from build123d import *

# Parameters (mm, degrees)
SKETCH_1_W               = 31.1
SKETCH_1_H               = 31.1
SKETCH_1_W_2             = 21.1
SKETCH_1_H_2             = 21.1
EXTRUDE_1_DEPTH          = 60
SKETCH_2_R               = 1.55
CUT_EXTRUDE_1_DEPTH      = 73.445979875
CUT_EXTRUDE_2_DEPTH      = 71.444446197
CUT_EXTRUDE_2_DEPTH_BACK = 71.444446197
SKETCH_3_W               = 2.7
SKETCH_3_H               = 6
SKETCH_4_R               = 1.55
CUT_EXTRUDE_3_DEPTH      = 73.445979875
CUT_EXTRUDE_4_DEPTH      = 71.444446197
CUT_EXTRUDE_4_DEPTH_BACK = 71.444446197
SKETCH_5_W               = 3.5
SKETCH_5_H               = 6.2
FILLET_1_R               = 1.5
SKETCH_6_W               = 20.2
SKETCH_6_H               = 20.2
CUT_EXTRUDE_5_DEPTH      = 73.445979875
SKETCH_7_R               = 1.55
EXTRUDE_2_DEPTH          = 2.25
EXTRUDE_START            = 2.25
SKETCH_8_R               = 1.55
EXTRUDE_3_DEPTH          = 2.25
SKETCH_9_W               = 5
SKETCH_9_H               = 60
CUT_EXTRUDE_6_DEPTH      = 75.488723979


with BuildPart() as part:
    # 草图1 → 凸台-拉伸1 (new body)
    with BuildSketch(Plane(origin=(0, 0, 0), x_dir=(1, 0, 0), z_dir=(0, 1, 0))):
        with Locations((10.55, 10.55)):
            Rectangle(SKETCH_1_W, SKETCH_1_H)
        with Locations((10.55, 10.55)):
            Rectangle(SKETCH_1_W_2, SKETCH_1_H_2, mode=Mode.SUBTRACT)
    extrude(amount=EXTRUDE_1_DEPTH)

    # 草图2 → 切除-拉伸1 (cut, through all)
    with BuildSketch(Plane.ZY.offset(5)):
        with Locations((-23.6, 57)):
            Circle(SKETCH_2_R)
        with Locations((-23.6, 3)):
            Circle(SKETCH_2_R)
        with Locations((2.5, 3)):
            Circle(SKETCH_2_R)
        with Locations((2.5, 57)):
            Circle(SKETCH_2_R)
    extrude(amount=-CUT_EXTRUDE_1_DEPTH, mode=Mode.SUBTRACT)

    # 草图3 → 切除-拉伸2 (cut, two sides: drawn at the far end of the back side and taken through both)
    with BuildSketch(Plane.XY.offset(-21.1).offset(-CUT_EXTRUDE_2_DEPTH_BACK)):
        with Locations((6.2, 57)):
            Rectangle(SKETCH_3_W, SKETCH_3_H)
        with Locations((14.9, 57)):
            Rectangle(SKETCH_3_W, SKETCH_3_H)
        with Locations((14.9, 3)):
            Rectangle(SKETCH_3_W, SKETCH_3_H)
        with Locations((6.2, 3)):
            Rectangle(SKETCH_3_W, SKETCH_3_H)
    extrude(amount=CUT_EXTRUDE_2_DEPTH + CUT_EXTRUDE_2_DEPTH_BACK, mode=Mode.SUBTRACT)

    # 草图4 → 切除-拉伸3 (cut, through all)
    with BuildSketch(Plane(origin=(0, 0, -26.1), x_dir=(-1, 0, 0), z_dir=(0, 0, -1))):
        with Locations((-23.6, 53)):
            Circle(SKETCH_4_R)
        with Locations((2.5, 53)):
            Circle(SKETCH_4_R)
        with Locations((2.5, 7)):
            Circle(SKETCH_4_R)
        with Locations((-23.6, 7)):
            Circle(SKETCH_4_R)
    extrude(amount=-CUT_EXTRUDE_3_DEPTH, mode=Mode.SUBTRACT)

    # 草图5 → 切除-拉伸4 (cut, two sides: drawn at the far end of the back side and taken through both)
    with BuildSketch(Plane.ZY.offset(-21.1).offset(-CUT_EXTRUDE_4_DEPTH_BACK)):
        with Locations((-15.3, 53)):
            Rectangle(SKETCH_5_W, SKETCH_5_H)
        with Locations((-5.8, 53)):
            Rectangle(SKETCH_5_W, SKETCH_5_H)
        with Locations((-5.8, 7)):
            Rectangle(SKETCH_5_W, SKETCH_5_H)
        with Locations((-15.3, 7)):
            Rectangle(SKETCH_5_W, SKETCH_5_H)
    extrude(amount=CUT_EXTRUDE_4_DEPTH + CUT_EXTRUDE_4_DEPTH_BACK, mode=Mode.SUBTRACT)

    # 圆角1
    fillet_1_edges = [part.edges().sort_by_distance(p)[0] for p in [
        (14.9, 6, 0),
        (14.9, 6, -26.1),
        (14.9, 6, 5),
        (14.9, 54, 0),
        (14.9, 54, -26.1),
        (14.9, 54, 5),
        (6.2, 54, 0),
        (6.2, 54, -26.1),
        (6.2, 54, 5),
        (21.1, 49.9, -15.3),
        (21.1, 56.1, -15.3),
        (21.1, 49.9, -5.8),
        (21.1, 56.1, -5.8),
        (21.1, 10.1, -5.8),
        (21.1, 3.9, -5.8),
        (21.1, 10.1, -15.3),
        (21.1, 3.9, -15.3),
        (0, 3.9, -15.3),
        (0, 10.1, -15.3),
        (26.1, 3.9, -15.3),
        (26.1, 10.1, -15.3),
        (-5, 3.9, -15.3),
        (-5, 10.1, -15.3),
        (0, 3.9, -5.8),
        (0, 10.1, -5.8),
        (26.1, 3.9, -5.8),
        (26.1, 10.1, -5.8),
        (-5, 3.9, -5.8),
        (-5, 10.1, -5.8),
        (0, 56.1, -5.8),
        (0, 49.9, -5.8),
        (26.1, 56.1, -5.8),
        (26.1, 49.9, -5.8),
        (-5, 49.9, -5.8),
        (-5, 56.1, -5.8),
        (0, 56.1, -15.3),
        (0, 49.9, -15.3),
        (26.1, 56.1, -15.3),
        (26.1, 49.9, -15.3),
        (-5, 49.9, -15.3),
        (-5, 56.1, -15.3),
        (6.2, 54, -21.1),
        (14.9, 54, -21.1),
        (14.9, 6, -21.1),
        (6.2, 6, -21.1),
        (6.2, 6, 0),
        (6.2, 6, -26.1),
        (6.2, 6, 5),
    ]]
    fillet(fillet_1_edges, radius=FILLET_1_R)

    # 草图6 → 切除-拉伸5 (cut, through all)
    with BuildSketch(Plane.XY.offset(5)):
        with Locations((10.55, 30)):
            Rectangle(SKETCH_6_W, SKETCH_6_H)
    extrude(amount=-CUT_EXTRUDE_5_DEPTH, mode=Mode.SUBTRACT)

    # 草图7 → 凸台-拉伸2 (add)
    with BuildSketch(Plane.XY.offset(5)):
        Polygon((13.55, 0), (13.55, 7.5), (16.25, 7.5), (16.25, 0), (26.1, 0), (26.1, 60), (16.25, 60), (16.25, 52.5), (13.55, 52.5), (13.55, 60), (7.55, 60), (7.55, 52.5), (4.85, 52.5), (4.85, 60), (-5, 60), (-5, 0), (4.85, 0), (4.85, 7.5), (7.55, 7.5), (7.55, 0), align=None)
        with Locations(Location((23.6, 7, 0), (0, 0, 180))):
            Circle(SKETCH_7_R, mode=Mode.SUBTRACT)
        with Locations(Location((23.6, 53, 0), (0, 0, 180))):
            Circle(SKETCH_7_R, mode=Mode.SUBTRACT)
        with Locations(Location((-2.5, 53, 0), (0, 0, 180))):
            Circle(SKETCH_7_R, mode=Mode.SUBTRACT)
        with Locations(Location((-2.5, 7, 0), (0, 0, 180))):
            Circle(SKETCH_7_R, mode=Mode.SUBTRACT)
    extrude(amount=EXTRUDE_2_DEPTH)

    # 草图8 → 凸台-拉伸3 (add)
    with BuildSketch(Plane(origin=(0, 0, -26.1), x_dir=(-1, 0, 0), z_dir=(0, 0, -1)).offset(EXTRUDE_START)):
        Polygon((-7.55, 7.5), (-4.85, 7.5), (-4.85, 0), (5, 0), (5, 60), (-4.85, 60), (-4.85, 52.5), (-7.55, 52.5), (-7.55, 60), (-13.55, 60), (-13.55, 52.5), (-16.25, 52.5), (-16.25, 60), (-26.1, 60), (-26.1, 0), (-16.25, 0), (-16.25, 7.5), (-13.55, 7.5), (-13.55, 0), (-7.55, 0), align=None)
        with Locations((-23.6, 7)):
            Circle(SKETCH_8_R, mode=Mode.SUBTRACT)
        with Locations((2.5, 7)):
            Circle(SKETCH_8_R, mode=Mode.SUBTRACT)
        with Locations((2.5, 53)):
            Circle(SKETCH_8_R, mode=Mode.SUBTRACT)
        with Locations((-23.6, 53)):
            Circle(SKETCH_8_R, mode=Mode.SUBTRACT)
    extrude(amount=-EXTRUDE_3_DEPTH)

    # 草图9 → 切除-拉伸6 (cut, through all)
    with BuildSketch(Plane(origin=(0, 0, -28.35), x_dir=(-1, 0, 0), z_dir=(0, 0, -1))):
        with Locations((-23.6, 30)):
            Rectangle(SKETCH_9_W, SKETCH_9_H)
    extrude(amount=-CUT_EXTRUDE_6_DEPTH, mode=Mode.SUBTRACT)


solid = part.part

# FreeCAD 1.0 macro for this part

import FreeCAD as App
import Part
import Sketcher
from FreeCAD import Vector


def edges_at(feature, points):
    """Names of the edges that pass closest to the given points."""
    edges = feature.Shape.Edges
    near = lambda p: min(range(len(edges)), key=lambda i: edges[i].distToShape(Part.Vertex(*p))[0])
    return sorted({f"Edge{near(p) + 1}" for p in points})

doc = App.newDocument("Part")
params = doc.addObject("Spreadsheet::Sheet", "Params")
for row, (alias, value) in enumerate([
    ("sketch1_width", "31.1 mm"),
    ("sketch1_width2", "21.1 mm"),
    ("pad1_length", "60 mm"),
    ("sketch2_diameter", "3.1 mm"),
    ("sketch3_height", "6 mm"),
    ("sketch3_width", "2.7 mm"),
    ("sketch4_diameter", "3.1 mm"),
    ("sketch5_width", "6.2 mm"),
    ("sketch5_height", "3.5 mm"),
    ("fillet_radius", "1.5 mm"),
    ("sketch6_width", "20.2 mm"),
    ("sketch7_diameter", "3.1 mm"),
    ("sketch7_width", "6 mm"),
    ("sketch7_height", "60 mm"),
    ("sketch7_width2", "2.7 mm"),
    ("sketch7_height2", "7.5 mm"),
    ("pad2_length", "2.25 mm"),
    ("sketch8_diameter", "3.1 mm"),
    ("sketch8_width", "6 mm"),
    ("sketch8_height", "60 mm"),
    ("sketch8_width2", "2.7 mm"),
    ("sketch8_height2", "7.5 mm"),
    ("pad3_length", "2.25 mm"),
    ("sketch9_width", "5 mm"),
    ("sketch9_height", "60 mm"),
], start=1):
    params.set(f"A{row}", alias)
    params.set(f"B{row}", "=" + value)
    params.setAlias(f"B{row}", alias)

body = doc.addObject("PartDesign::Body", "Body")

# Sketch on XZ plane
sketch1 = doc.addObject("Sketcher::SketchObject", "Sketch")
body.addObject(sketch1)
sketch1.AttachmentSupport = (doc.XZ_Plane, [""])
sketch1.MapMode = "FlatFace"
sketch1.addGeometry([
    Part.LineSegment(Vector(-5, -26, 0), Vector(-5, 5, 0)),  # 0
    Part.LineSegment(Vector(-5, 5, 0), Vector(26, 5, 0)),  # 1
    Part.LineSegment(Vector(26, 5, 0), Vector(26, -26, 0)),  # 2
    Part.LineSegment(Vector(26, -26, 0), Vector(-5, -26, 0)),  # 3
    Part.LineSegment(Vector(21, 0, 0), Vector(0, 0, 0)),  # 4
    Part.LineSegment(Vector(0, 0, 0), Vector(0, -21, 0)),  # 5
    Part.LineSegment(Vector(0, -21, 0), Vector(21, -21, 0)),  # 6
    Part.LineSegment(Vector(21, -21, 0), Vector(21, 0, 0)),  # 7
], False)
sketch1.addConstraint([
    Sketcher.Constraint("Coincident", 0, 2, 1, 1),
    Sketcher.Constraint("Coincident", 1, 2, 2, 1),
    Sketcher.Constraint("Coincident", 2, 2, 3, 1),
    Sketcher.Constraint("Coincident", 3, 2, 0, 1),
    Sketcher.Constraint("Coincident", 4, 2, 5, 1),
    Sketcher.Constraint("Coincident", 5, 2, 6, 1),
    Sketcher.Constraint("Coincident", 6, 2, 7, 1),
    Sketcher.Constraint("Coincident", 7, 2, 4, 1),
    Sketcher.Constraint("Vertical", 0),
    Sketcher.Constraint("Horizontal", 1),
    Sketcher.Constraint("Vertical", 2),
    Sketcher.Constraint("Horizontal", 3),
    Sketcher.Constraint("Horizontal", 4),
    Sketcher.Constraint("Vertical", 5),
    Sketcher.Constraint("Horizontal", 6),
    Sketcher.Constraint("Vertical", 7),
    Sketcher.Constraint("Coincident", 4, 2, -1, 1),
    Sketcher.Constraint("Equal", 3, 0),
    Sketcher.Constraint("Equal", 6, 5),
    Sketcher.Constraint("DistanceX", 1, 1, 1, 2, 31.1),
    Sketcher.Constraint("DistanceX", 4, 2, 4, 1, 21.1),
    Sketcher.Constraint("DistanceX", 0, 2, -1, 1, 5.0),
    Sketcher.Constraint("DistanceY", -1, 1, 0, 2, 5.0),
])
sketch1.setExpression("Constraints[19]", "Params.sketch1_width")
sketch1.setExpression("Constraints[20]", "Params.sketch1_width2")
pad1 = doc.addObject("PartDesign::Pad", "Pad")
body.addObject(pad1)
pad1.Profile = sketch1
pad1.setExpression("Length", "Params.pad1_length")
pad1.Reversed = True

# Sketch on YZ plane
sketch2 = doc.addObject("Sketcher::SketchObject", "Sketch001")
body.addObject(sketch2)
sketch2.AttachmentSupport = (doc.YZ_Plane, [""])
sketch2.MapMode = "FlatFace"
sketch2.AttachmentOffset = App.Placement(Vector(0, 0, -5), App.Rotation())
sketch2.addGeometry([
    Part.Circle(Vector(57, -23.6, 0), Vector(0, 0, 1), 1.6),
    Part.Circle(Vector(3, -23.6, 0), Vector(0, 0, 1), 1.6),
    Part.Circle(Vector(3, 2.5, 0), Vector(0, 0, 1), 1.6),
    Part.Circle(Vector(57, 2.5, 0), Vector(0, 0, 1), 1.6),
], False)
sketch2.addConstraint([
    Sketcher.Constraint("Equal", 0, 1),
    Sketcher.Constraint("Equal", 1, 2),
    Sketcher.Constraint("Equal", 2, 3),
    Sketcher.Constraint("Horizontal", 0, 3, 1, 3),
    Sketcher.Constraint("Horizontal", 2, 3, 3, 3),
    Sketcher.Constraint("Vertical", 1, 3, 2, 3),
    Sketcher.Constraint("Vertical", 0, 3, 3, 3),
    Sketcher.Constraint("Diameter", 0, 3.1),
    Sketcher.Constraint("DistanceX", -1, 1, 0, 3, 57.0),
    Sketcher.Constraint("DistanceX", -1, 1, 1, 3, 3.0),
    Sketcher.Constraint("DistanceY", 0, 3, -1, 1, 23.6),
    Sketcher.Constraint("DistanceY", -1, 1, 2, 3, 2.5),
])
sketch2.setExpression("Constraints[7]", "Params.sketch2_diameter")
pocket1 = doc.addObject("PartDesign::Pocket", "Pocket")
body.addObject(pocket1)
pocket1.Profile = sketch2
pocket1.Type = "ThroughAll"
pocket1.Reversed = True

# Sketch on XY plane
sketch3 = doc.addObject("Sketcher::SketchObject", "Sketch002")
body.addObject(sketch3)
sketch3.AttachmentSupport = (doc.XY_Plane, [""])
sketch3.MapMode = "FlatFace"
sketch3.AttachmentOffset = App.Placement(Vector(0, 0, -21.1), App.Rotation())
sketch3.addGeometry([
    Part.LineSegment(Vector(4.8, 60, 0), Vector(4.8, 54, 0)),  # 0
    Part.LineSegment(Vector(4.8, 54, 0), Vector(7.5, 54, 0)),  # 1
    Part.LineSegment(Vector(7.5, 54, 0), Vector(7.5, 60, 0)),  # 2
    Part.LineSegment(Vector(7.5, 60, 0), Vector(4.8, 60, 0)),  # 3
    Part.LineSegment(Vector(13.6, 60, 0), Vector(13.6, 54, 0)),  # 4
    Part.LineSegment(Vector(13.6, 54, 0), Vector(16.2, 54, 0)),  # 5
    Part.LineSegment(Vector(16.2, 54, 0), Vector(16.2, 60, 0)),  # 6
    Part.LineSegment(Vector(16.2, 60, 0), Vector(13.6, 60, 0)),  # 7
    Part.LineSegment(Vector(13.6, 6, 0), Vector(13.6, 0, 0)),  # 8
    Part.LineSegment(Vector(13.6, 0, 0), Vector(16.2, 0, 0)),  # 9
    Part.LineSegment(Vector(16.2, 0, 0), Vector(16.2, 6, 0)),  # 10
    Part.LineSegment(Vector(16.2, 6, 0), Vector(13.6, 6, 0)),  # 11
    Part.LineSegment(Vector(4.8, 6, 0), Vector(4.8, 0, 0)),  # 12
    Part.LineSegment(Vector(4.8, 0, 0), Vector(7.5, 0, 0)),  # 13
    Part.LineSegment(Vector(7.5, 0, 0), Vector(7.5, 6, 0)),  # 14
    Part.LineSegment(Vector(7.5, 6, 0), Vector(4.8, 6, 0)),  # 15
], False)
sketch3.addConstraint([
    Sketcher.Constraint("Coincident", 0, 2, 1, 1),
    Sketcher.Constraint("Coincident", 1, 2, 2, 1),
    Sketcher.Constraint("Coincident", 2, 2, 3, 1),
    Sketcher.Constraint("Coincident", 3, 2, 0, 1),
    Sketcher.Constraint("Coincident", 4, 2, 5, 1),
    Sketcher.Constraint("Coincident", 5, 2, 6, 1),
    Sketcher.Constraint("Coincident", 6, 2, 7, 1),
    Sketcher.Constraint("Coincident", 7, 2, 4, 1),
    Sketcher.Constraint("Coincident", 8, 2, 9, 1),
    Sketcher.Constraint("Coincident", 9, 2, 10, 1),
    Sketcher.Constraint("Coincident", 10, 2, 11, 1),
    Sketcher.Constraint("Coincident", 11, 2, 8, 1),
    Sketcher.Constraint("Coincident", 12, 2, 13, 1),
    Sketcher.Constraint("Coincident", 13, 2, 14, 1),
    Sketcher.Constraint("Coincident", 14, 2, 15, 1),
    Sketcher.Constraint("Coincident", 15, 2, 12, 1),
    Sketcher.Constraint("Vertical", 0),
    Sketcher.Constraint("Horizontal", 1),
    Sketcher.Constraint("Vertical", 2),
    Sketcher.Constraint("Horizontal", 3),
    Sketcher.Constraint("Vertical", 4),
    Sketcher.Constraint("Horizontal", 5),
    Sketcher.Constraint("Vertical", 6),
    Sketcher.Constraint("Horizontal", 7),
    Sketcher.Constraint("Vertical", 8),
    Sketcher.Constraint("Horizontal", 9),
    Sketcher.Constraint("Vertical", 10),
    Sketcher.Constraint("Horizontal", 11),
    Sketcher.Constraint("Vertical", 12),
    Sketcher.Constraint("Horizontal", 13),
    Sketcher.Constraint("Vertical", 14),
    Sketcher.Constraint("Horizontal", 15),
    Sketcher.Constraint("PointOnObject", 8, 2, -1),
    Sketcher.Constraint("PointOnObject", 12, 2, -1),
    Sketcher.Constraint("Horizontal", 1, 2, 4, 2),
    Sketcher.Constraint("Horizontal", 3, 2, 6, 2),
    Sketcher.Constraint("Horizontal", 11, 2, 14, 2),
    Sketcher.Constraint("Vertical", 7, 2, 8, 2),
    Sketcher.Constraint("Vertical", 6, 2, 9, 2),
    Sketcher.Constraint("Vertical", 3, 2, 12, 2),
    Sketcher.Constraint("Vertical", 2, 2, 13, 2),
    Sketcher.Constraint("Equal", 3, 5),
    Sketcher.Constraint("Equal", 6, 8),
    Sketcher.Constraint("DistanceY", 0, 2, 0, 1, 6.0),
    Sketcher.Constraint("DistanceX", 1, 1, 1, 2, 2.7),
    Sketcher.Constraint("DistanceY", -1, 1, 0, 2, 54.0),
    Sketcher.Constraint("DistanceX", 1, 2, 4, 2, 6.0),
    Sketcher.Constraint("DistanceX", -1, 1, 0, 2, 4.85),
])
sketch3.setExpression("Constraints[43]", "Params.sketch3_height")
sketch3.setExpression("Constraints[44]", "Params.sketch3_width")
pocket2 = doc.addObject("PartDesign::Pocket", "Pocket001")
body.addObject(pocket2)
pocket2.Profile = sketch3
pocket2.Type = "ThroughAll"
pocket2.Midplane = True

# Sketch on XY plane
sketch4 = doc.addObject("Sketcher::SketchObject", "Sketch003")
body.addObject(sketch4)
sketch4.AttachmentSupport = (doc.XY_Plane, [""])
sketch4.MapMode = "FlatFace"
sketch4.AttachmentOffset = App.Placement(Vector(0, 0, -26.1), App.Rotation())
sketch4.addGeometry([
    Part.Circle(Vector(23.6, 53, 0), Vector(0, 0, 1), 1.6),
    Part.Circle(Vector(-2.5, 53, 0), Vector(0, 0, 1), 1.6),
    Part.Circle(Vector(-2.5, 7, 0), Vector(0, 0, 1), 1.6),
    Part.Circle(Vector(23.6, 7, 0), Vector(0, 0, 1), 1.6),
], False)
sketch4.addConstraint([
    Sketcher.Constraint("Equal", 0, 1),
    Sketcher.Constraint("Equal", 1, 2),
    Sketcher.Constraint("Equal", 2, 3),
    Sketcher.Constraint("Horizontal", 0, 3, 1, 3),
    Sketcher.Constraint("Horizontal", 2, 3, 3, 3),
    Sketcher.Constraint("Vertical", 1, 3, 2, 3),
    Sketcher.Constraint("Vertical", 0, 3, 3, 3),
    Sketcher.Constraint("Diameter", 0, 3.1),
    Sketcher.Constraint("DistanceY", -1, 1, 0, 3, 53.0),
    Sketcher.Constraint("DistanceY", -1, 1, 2, 3, 7.0),
    Sketcher.Constraint("DistanceX", -1, 1, 0, 3, 23.6),
    Sketcher.Constraint("DistanceX", 1, 3, -1, 1, 2.5),
])
sketch4.setExpression("Constraints[7]", "Params.sketch4_diameter")
pocket3 = doc.addObject("PartDesign::Pocket", "Pocket002")
body.addObject(pocket3)
pocket3.Profile = sketch4
pocket3.Type = "ThroughAll"
pocket3.Reversed = True

# Sketch on YZ plane
sketch5 = doc.addObject("Sketcher::SketchObject", "Sketch004")
body.addObject(sketch5)
sketch5.AttachmentSupport = (doc.YZ_Plane, [""])
sketch5.MapMode = "FlatFace"
sketch5.AttachmentOffset = App.Placement(Vector(0, 0, 21.1), App.Rotation())
sketch5.addGeometry([
    Part.LineSegment(Vector(56.1, -17.1, 0), Vector(49.9, -17.1, 0)),  # 0
    Part.LineSegment(Vector(49.9, -17.1, 0), Vector(49.9, -13.6, 0)),  # 1
    Part.LineSegment(Vector(49.9, -13.6, 0), Vector(56.1, -13.6, 0)),  # 2
    Part.LineSegment(Vector(56.1, -13.6, 0), Vector(56.1, -17.1, 0)),  # 3
    Part.LineSegment(Vector(56.1, -7.5, 0), Vector(49.9, -7.5, 0)),  # 4
    Part.LineSegment(Vector(49.9, -7.5, 0), Vector(49.9, -4, 0)),  # 5
    Part.LineSegment(Vector(49.9, -4, 0), Vector(56.1, -4, 0)),  # 6
    Part.LineSegment(Vector(56.1, -4, 0), Vector(56.1, -7.5, 0)),  # 7
    Part.LineSegment(Vector(10.1, -7.5, 0), Vector(3.9, -7.5, 0)),  # 8
    Part.LineSegment(Vector(3.9, -7.5, 0), Vector(3.9, -4, 0)),  # 9
    Part.LineSegment(Vector(3.9, -4, 0), Vector(10.1, -4, 0)),  # 10
    Part.LineSegment(Vector(10.1, -4, 0), Vector(10.1, -7.5, 0)),  # 11
    Part.LineSegment(Vector(10.1, -17.1, 0), Vector(3.9, -17.1, 0)),  # 12
    Part.LineSegment(Vector(3.9, -17.1, 0), Vector(3.9, -13.6, 0)),  # 13
    Part.LineSegment(Vector(3.9, -13.6, 0), Vector(10.1, -13.6, 0)),  # 14
    Part.LineSegment(Vector(10.1, -13.6, 0), Vector(10.1, -17.1, 0)),  # 15
], False)
sketch5.addConstraint([
    Sketcher.Constraint("Coincident", 0, 2, 1, 1),
    Sketcher.Constraint("Coincident", 1, 2, 2, 1),
    Sketcher.Constraint("Coincident", 2, 2, 3, 1),
    Sketcher.Constraint("Coincident", 3, 2, 0, 1),
    Sketcher.Constraint("Coincident", 4, 2, 5, 1),
    Sketcher.Constraint("Coincident", 5, 2, 6, 1),
    Sketcher.Constraint("Coincident", 6, 2, 7, 1),
    Sketcher.Constraint("Coincident", 7, 2, 4, 1),
    Sketcher.Constraint("Coincident", 8, 2, 9, 1),
    Sketcher.Constraint("Coincident", 9, 2, 10, 1),
    Sketcher.Constraint("Coincident", 10, 2, 11, 1),
    Sketcher.Constraint("Coincident", 11, 2, 8, 1),
    Sketcher.Constraint("Coincident", 12, 2, 13, 1),
    Sketcher.Constraint("Coincident", 13, 2, 14, 1),
    Sketcher.Constraint("Coincident", 14, 2, 15, 1),
    Sketcher.Constraint("Coincident", 15, 2, 12, 1),
    Sketcher.Constraint("Horizontal", 0),
    Sketcher.Constraint("Vertical", 1),
    Sketcher.Constraint("Horizontal", 2),
    Sketcher.Constraint("Vertical", 3),
    Sketcher.Constraint("Horizontal", 4),
    Sketcher.Constraint("Vertical", 5),
    Sketcher.Constraint("Horizontal", 6),
    Sketcher.Constraint("Vertical", 7),
    Sketcher.Constraint("Horizontal", 8),
    Sketcher.Constraint("Vertical", 9),
    Sketcher.Constraint("Horizontal", 10),
    Sketcher.Constraint("Vertical", 11),
    Sketcher.Constraint("Horizontal", 12),
    Sketcher.Constraint("Vertical", 13),
    Sketcher.Constraint("Horizontal", 14),
    Sketcher.Constraint("Vertical", 15),
    Sketcher.Constraint("Horizontal", 7, 2, 8, 2),
    Sketcher.Constraint("Horizontal", 6, 2, 9, 2),
    Sketcher.Constraint("Horizontal", 3, 2, 12, 2),
    Sketcher.Constraint("Horizontal", 2, 2, 13, 2),
    Sketcher.Constraint("Vertical", 1, 2, 4, 2),
    Sketcher.Constraint("Vertical", 3, 2, 6, 2),
    Sketcher.Constraint("Vertical", 9, 2, 12, 2),
    Sketcher.Constraint("Vertical", 11, 2, 14, 2),
    Sketcher.Constraint("Equal", 6, 8),
    Sketcher.Constraint("Equal", 3, 5),
    Sketcher.Constraint("DistanceX", 0, 2, 0, 1, 6.2),
    Sketcher.Constraint("DistanceY", 1, 1, 1, 2, 3.5),
    Sketcher.Constraint("DistanceY", 1, 2, 4, 2, 6.0),
    Sketcher.Constraint("DistanceX", 8, 2, 4, 2, 46.0),
    Sketcher.Constraint("DistanceX", -1, 1, 0, 2, 49.9),
    Sketcher.Constraint("DistanceY", 0, 2, -1, 1, 17.05),
])
sketch5.setExpression("Constraints[42]", "Params.sketch5_width")
sketch5.setExpression("Constraints[43]", "Params.sketch5_height")
pocket4 = doc.addObject("PartDesign::Pocket", "Pocket003")
body.addObject(pocket4)
pocket4.Profile = sketch5
pocket4.Type = "ThroughAll"
pocket4.Midplane = True
doc.recompute()

fillet = doc.addObject("PartDesign::Fillet", "Fillet")
body.addObject(fillet)
fillet.Base = (pocket4, edges_at(pocket4, [
    (14.9, 6, 0),
    (14.9, 6, -26.1),
    (14.9, 6, 5),
    (14.9, 54, 0),
    (14.9, 54, -26.1),
    (14.9, 54, 5),
    (6.2, 54, 0),
    (6.2, 54, -26.1),
    (6.2, 54, 5),
    (21.1, 49.9, -15.3),
    (21.1, 56.1, -15.3),
    (21.1, 49.9, -5.8),
    (21.1, 56.1, -5.8),
    (21.1, 10.1, -5.8),
    (21.1, 3.9, -5.8),
    (21.1, 10.1, -15.3),
    (21.1, 3.9, -15.3),
    (0, 3.9, -15.3),
    (0, 10.1, -15.3),
    (26.1, 3.9, -15.3),
    (26.1, 10.1, -15.3),
    (-5, 3.9, -15.3),
    (-5, 10.1, -15.3),
    (0, 3.9, -5.8),
    (0, 10.1, -5.8),
    (26.1, 3.9, -5.8),
    (26.1, 10.1, -5.8),
    (-5, 3.9, -5.8),
    (-5, 10.1, -5.8),
    (0, 56.1, -5.8),
    (0, 49.9, -5.8),
    (26.1, 56.1, -5.8),
    (26.1, 49.9, -5.8),
    (-5, 49.9, -5.8),
    (-5, 56.1, -5.8),
    (0, 56.1, -15.3),
    (0, 49.9, -15.3),
    (26.1, 56.1, -15.3),
    (26.1, 49.9, -15.3),
    (-5, 49.9, -15.3),
    (-5, 56.1, -15.3),
    (6.2, 54, -21.1),
    (14.9, 54, -21.1),
    (14.9, 6, -21.1),
    (6.2, 6, -21.1),
    (6.2, 6, 0),
    (6.2, 6, -26.1),
    (6.2, 6, 5),
]))
fillet.setExpression("Radius", "Params.fillet_radius")

# Sketch on XY plane
sketch6 = doc.addObject("Sketcher::SketchObject", "Sketch005")
body.addObject(sketch6)
sketch6.AttachmentSupport = (doc.XY_Plane, [""])
sketch6.MapMode = "FlatFace"
sketch6.AttachmentOffset = App.Placement(Vector(0, 0, 5), App.Rotation())
sketch6.addGeometry([
    Part.LineSegment(Vector(0, 40, 0), Vector(0, 20, 0)),
    Part.LineSegment(Vector(0, 20, 0), Vector(21, 20, 0)),
    Part.LineSegment(Vector(21, 20, 0), Vector(21, 40, 0)),
    Part.LineSegment(Vector(21, 40, 0), Vector(0, 40, 0)),
], False)
sketch6.addConstraint([
    Sketcher.Constraint("Coincident", 0, 2, 1, 1),
    Sketcher.Constraint("Coincident", 1, 2, 2, 1),
    Sketcher.Constraint("Coincident", 2, 2, 3, 1),
    Sketcher.Constraint("Coincident", 3, 2, 0, 1),
    Sketcher.Constraint("Vertical", 0),
    Sketcher.Constraint("Horizontal", 1),
    Sketcher.Constraint("Vertical", 2),
    Sketcher.Constraint("Horizontal", 3),
    Sketcher.Constraint("Equal", 3, 0),
    Sketcher.Constraint("DistanceX", 1, 1, 1, 2, 20.2),
    Sketcher.Constraint("DistanceY", -1, 1, 0, 2, 19.9),
    Sketcher.Constraint("DistanceX", -1, 1, 0, 2, 0.45),
])
sketch6.setExpression("Constraints[9]", "Params.sketch6_width")
pocket5 = doc.addObject("PartDesign::Pocket", "Pocket004")
body.addObject(pocket5)
pocket5.Profile = sketch6
pocket5.Type = "ThroughAll"

# Sketch on XY plane
sketch7 = doc.addObject("Sketcher::SketchObject", "Sketch006")
body.addObject(sketch7)
sketch7.AttachmentSupport = (doc.XY_Plane, [""])
sketch7.MapMode = "FlatFace"
sketch7.AttachmentOffset = App.Placement(Vector(0, 0, 5), App.Rotation())
sketch7.addGeometry([
    Part.LineSegment(Vector(13.6, 0, 0), Vector(13.6, 7.5, 0)),  # 0
    Part.LineSegment(Vector(13.6, 7.5, 0), Vector(16.2, 7.5, 0)),  # 1
    Part.LineSegment(Vector(16.2, 7.5, 0), Vector(16.2, 0, 0)),  # 2
    Part.LineSegment(Vector(16.2, 0, 0), Vector(26.1, 0, 0)),  # 3
    Part.LineSegment(Vector(26.1, 0, 0), Vector(26.1, 60, 0)),  # 4
    Part.LineSegment(Vector(26.1, 60, 0), Vector(16.2, 60, 0)),  # 5
    Part.LineSegment(Vector(16.2, 60, 0), Vector(16.2, 52.5, 0)),  # 6
    Part.LineSegment(Vector(16.2, 52.5, 0), Vector(13.6, 52.5, 0)),  # 7
    Part.LineSegment(Vector(13.6, 52.5, 0), Vector(13.6, 60, 0)),  # 8
    Part.LineSegment(Vector(13.6, 60, 0), Vector(7.5, 60, 0)),  # 9
    Part.LineSegment(Vector(7.5, 60, 0), Vector(7.5, 52.5, 0)),  # 10
    Part.LineSegment(Vector(7.5, 52.5, 0), Vector(4.8, 52.5, 0)),  # 11
    Part.LineSegment(Vector(4.8, 52.5, 0), Vector(4.8, 60, 0)),  # 12
    Part.LineSegment(Vector(4.8, 60, 0), Vector(-5, 60, 0)),  # 13
    Part.LineSegment(Vector(-5, 60, 0), Vector(-5, 0, 0)),  # 14
    Part.LineSegment(Vector(-5, 0, 0), Vector(4.8, 0, 0)),  # 15
    Part.LineSegment(Vector(4.8, 0, 0), Vector(4.8, 7.5, 0)),  # 16
    Part.LineSegment(Vector(4.8, 7.5, 0), Vector(7.5, 7.5, 0)),  # 17
    Part.LineSegment(Vector(7.5, 7.5, 0), Vector(7.5, 0, 0)),  # 18
    Part.LineSegment(Vector(7.5, 0, 0), Vector(13.6, 0, 0)),  # 19
    Part.Circle(Vector(-2.5, 7, 0), Vector(0, 0, 1), 1.6),  # 20
    Part.Circle(Vector(23.6, 7, 0), Vector(0, 0, 1), 1.6),  # 21
    Part.Circle(Vector(-2.5, 53, 0), Vector(0, 0, 1), 1.6),  # 22
    Part.Circle(Vector(23.6, 53, 0), Vector(0, 0, 1), 1.6),  # 23
], False)
sketch7.addConstraint([
    Sketcher.Constraint("Coincident", 0, 2, 1, 1),
    Sketcher.Constraint("Coincident", 1, 2, 2, 1),
    Sketcher.Constraint("Coincident", 2, 2, 3, 1),
    Sketcher.Constraint("Coincident", 3, 2, 4, 1),
    Sketcher.Constraint("Coincident", 4, 2, 5, 1),
    Sketcher.Constraint("Coincident", 5, 2, 6, 1),
    Sketcher.Constraint("Coincident", 6, 2, 7, 1),
    Sketcher.Constraint("Coincident", 7, 2, 8, 1),
    Sketcher.Constraint("Coincident", 8, 2, 9, 1),
    Sketcher.Constraint("Coincident", 9, 2, 10, 1),
    Sketcher.Constraint("Coincident", 10, 2, 11, 1),
    Sketcher.Constraint("Coincident", 11, 2, 12, 1),
    Sketcher.Constraint("Coincident", 12, 2, 13, 1),
    Sketcher.Constraint("Coincident", 13, 2, 14, 1),
    Sketcher.Constraint("Coincident", 14, 2, 15, 1),
    Sketcher.Constraint("Coincident", 15, 2, 16, 1),
    Sketcher.Constraint("Coincident", 16, 2, 17, 1),
    Sketcher.Constraint("Coincident", 17, 2, 18, 1),
    Sketcher.Constraint("Coincident", 18, 2, 19, 1),
    Sketcher.Constraint("Coincident", 19, 2, 0, 1),
    Sketcher.Constraint("Vertical", 0),
    Sketcher.Constraint("Horizontal", 1),
    Sketcher.Constraint("Vertical", 2),
    Sketcher.Constraint("Horizontal", 3),
    Sketcher.Constraint("Vertical", 4),
    Sketcher.Constraint("Horizontal", 5),
    Sketcher.Constraint("Vertical", 6),
    Sketcher.Constraint("Horizontal", 7),
    Sketcher.Constraint("Vertical", 8),
    Sketcher.Constraint("Horizontal", 9),
    Sketcher.Constraint("Vertical", 10),
    Sketcher.Constraint("Horizontal", 11),
    Sketcher.Constraint("Vertical", 12),
    Sketcher.Constraint("Horizontal", 13),
    Sketcher.Constraint("Vertical", 14),
    Sketcher.Constraint("Horizontal", 15),
    Sketcher.Constraint("Vertical", 16),
    Sketcher.Constraint("Horizontal", 17),
    Sketcher.Constraint("Vertical", 18),
    Sketcher.Constraint("Horizontal", 19),
    Sketcher.Constraint("Equal", 20, 21),
    Sketcher.Constraint("Equal", 21, 22),
    Sketcher.Constraint("Equal", 22, 23),
    Sketcher.Constraint("PointOnObject", 2, 2, -1),
    Sketcher.Constraint("PointOnObject", 14, 2, -1),
    Sketcher.Constraint("PointOnObject", 18, 2, -1),
    Sketcher.Constraint("Horizontal", 20, 3, 21, 3),
    Sketcher.Constraint("Horizontal", 22, 3, 23, 3),
    Sketcher.Constraint("Horizontal", 5, 2, 8, 2),
    Sketcher.Constraint("Horizontal", 7, 2, 10, 2),
    Sketcher.Constraint("Horizontal", 9, 2, 12, 2),
    Sketcher.Constraint("Horizontal", 1, 2, 16, 2),
    Sketcher.Constraint("Vertical", 20, 3, 22, 3),
    Sketcher.Constraint("Vertical", 21, 3, 23, 3),
    Sketcher.Constraint("Vertical", 2, 2, 5, 2),
    Sketcher.Constraint("Vertical", 0, 2, 7, 2),
    Sketcher.Constraint("Vertical", 12, 2, 15, 2),
    Sketcher.Constraint("Vertical", 10, 2, 17, 2),
    Sketcher.Constraint("Equal", 7, 11),
    Sketcher.Constraint("Equal", 5, 13),
    Sketcher.Constraint("Equal", 2, 6),
    Sketcher.Constraint("Diameter", 20, 3.1),
    Sketcher.Constraint("DistanceX", 9, 2, 9, 1, 6.0),
    Sketcher.Constraint("DistanceY", 4, 1, 4, 2, 60.0),
    Sketcher.Constraint("DistanceX", 1, 1, 1, 2, 2.7),
    Sketcher.Constraint("DistanceY", 0, 1, 0, 2, 7.5),
    Sketcher.Constraint("DistanceY", -1, 1, 20, 3, 7.0),
    Sketcher.Constraint("DistanceY", -1, 1, 22, 3, 53.0),
    Sketcher.Constraint("DistanceX", 13, 2, -1, 1, 5.0),
    Sketcher.Constraint("DistanceX", 3, 1, 3, 2, 9.85),
    Sketcher.Constraint("DistanceX", 20, 3, -1, 1, 2.5),
    Sketcher.Constraint("DistanceX", -1, 1, 21, 3, 23.6),
])
sketch7.setExpression("Constraints[61]", "Params.sketch7_diameter")
sketch7.setExpression("Constraints[62]", "Params.sketch7_width")
sketch7.setExpression("Constraints[63]", "Params.sketch7_height")
sketch7.setExpression("Constraints[64]", "Params.sketch7_width2")
sketch7.setExpression("Constraints[65]", "Params.sketch7_height2")
pad2 = doc.addObject("PartDesign::Pad", "Pad001")
body.addObject(pad2)
pad2.Profile = sketch7
pad2.setExpression("Length", "Params.pad2_length")

# Sketch on XY plane
sketch8 = doc.addObject("Sketcher::SketchObject", "Sketch007")
body.addObject(sketch8)
sketch8.AttachmentSupport = (doc.XY_Plane, [""])
sketch8.MapMode = "FlatFace"
sketch8.AttachmentOffset = App.Placement(Vector(0, 0, -28.35), App.Rotation())
sketch8.addGeometry([
    Part.LineSegment(Vector(7.5, 7.5, 0), Vector(4.8, 7.5, 0)),  # 0
    Part.LineSegment(Vector(4.8, 7.5, 0), Vector(4.8, 0, 0)),  # 1
    Part.LineSegment(Vector(4.8, 0, 0), Vector(-5, 0, 0)),  # 2
    Part.LineSegment(Vector(-5, 0, 0), Vector(-5, 60, 0)),  # 3
    Part.LineSegment(Vector(-5, 60, 0), Vector(4.8, 60, 0)),  # 4
    Part.LineSegment(Vector(4.8, 60, 0), Vector(4.8, 52.5, 0)),  # 5
    Part.LineSegment(Vector(4.8, 52.5, 0), Vector(7.5, 52.5, 0)),  # 6
    Part.LineSegment(Vector(7.5, 52.5, 0), Vector(7.5, 60, 0)),  # 7
    Part.LineSegment(Vector(7.5, 60, 0), Vector(13.6, 60, 0)),  # 8
    Part.LineSegment(Vector(13.6, 60, 0), Vector(13.6, 52.5, 0)),  # 9
    Part.LineSegment(Vector(13.6, 52.5, 0), Vector(16.2, 52.5, 0)),  # 10
    Part.LineSegment(Vector(16.2, 52.5, 0), Vector(16.2, 60, 0)),  # 11
    Part.LineSegment(Vector(16.2, 60, 0), Vector(26.1, 60, 0)),  # 12
    Part.LineSegment(Vector(26.1, 60, 0), Vector(26.1, 0, 0)),  # 13
    Part.LineSegment(Vector(26.1, 0, 0), Vector(16.2, 0, 0)),  # 14
    Part.LineSegment(Vector(16.2, 0, 0), Vector(16.2, 7.5, 0)),  # 15
    Part.LineSegment(Vector(16.2, 7.5, 0), Vector(13.6, 7.5, 0)),  # 16
    Part.LineSegment(Vector(13.6, 7.5, 0), Vector(13.6, 0, 0)),  # 17
    Part.LineSegment(Vector(13.6, 0, 0), Vector(7.5, 0, 0)),  # 18
    Part.LineSegment(Vector(7.5, 0, 0), Vector(7.5, 7.5, 0)),  # 19
    Part.Circle(Vector(23.6, 7, 0), Vector(0, 0, 1), 1.6),  # 20
    Part.Circle(Vector(-2.5, 7, 0), Vector(0, 0, 1), 1.6),  # 21
    Part.Circle(Vector(23.6, 53, 0), Vector(0, 0, 1), 1.6),  # 22
    Part.Circle(Vector(-2.5, 53, 0), Vector(0, 0, 1), 1.6),  # 23
], False)
sketch8.addConstraint([
    Sketcher.Constraint("Coincident", 0, 2, 1, 1),
    Sketcher.Constraint("Coincident", 1, 2, 2, 1),
    Sketcher.Constraint("Coincident", 2, 2, 3, 1),
    Sketcher.Constraint("Coincident", 3, 2, 4, 1),
    Sketcher.Constraint("Coincident", 4, 2, 5, 1),
    Sketcher.Constraint("Coincident", 5, 2, 6, 1),
    Sketcher.Constraint("Coincident", 6, 2, 7, 1),
    Sketcher.Constraint("Coincident", 7, 2, 8, 1),
    Sketcher.Constraint("Coincident", 8, 2, 9, 1),
    Sketcher.Constraint("Coincident", 9, 2, 10, 1),
    Sketcher.Constraint("Coincident", 10, 2, 11, 1),
    Sketcher.Constraint("Coincident", 11, 2, 12, 1),
    Sketcher.Constraint("Coincident", 12, 2, 13, 1),
    Sketcher.Constraint("Coincident", 13, 2, 14, 1),
    Sketcher.Constraint("Coincident", 14, 2, 15, 1),
    Sketcher.Constraint("Coincident", 15, 2, 16, 1),
    Sketcher.Constraint("Coincident", 16, 2, 17, 1),
    Sketcher.Constraint("Coincident", 17, 2, 18, 1),
    Sketcher.Constraint("Coincident", 18, 2, 19, 1),
    Sketcher.Constraint("Coincident", 19, 2, 0, 1),
    Sketcher.Constraint("Horizontal", 0),
    Sketcher.Constraint("Vertical", 1),
    Sketcher.Constraint("Horizontal", 2),
    Sketcher.Constraint("Vertical", 3),
    Sketcher.Constraint("Horizontal", 4),
    Sketcher.Constraint("Vertical", 5),
    Sketcher.Constraint("Horizontal", 6),
    Sketcher.Constraint("Vertical", 7),
    Sketcher.Constraint("Horizontal", 8),
    Sketcher.Constraint("Vertical", 9),
    Sketcher.Constraint("Horizontal", 10),
    Sketcher.Constraint("Vertical", 11),
    Sketcher.Constraint("Horizontal", 12),
    Sketcher.Constraint("Vertical", 13),
    Sketcher.Constraint("Horizontal", 14),
    Sketcher.Constraint("Vertical", 15),
    Sketcher.Constraint("Horizontal", 16),
    Sketcher.Constraint("Vertical", 17),
    Sketcher.Constraint("Horizontal", 18),
    Sketcher.Constraint("Vertical", 19),
    Sketcher.Constraint("Equal", 20, 21),
    Sketcher.Constraint("Equal", 21, 22),
    Sketcher.Constraint("Equal", 22, 23),
    Sketcher.Constraint("PointOnObject", 1, 2, -1),
    Sketcher.Constraint("PointOnObject", 13, 2, -1),
    Sketcher.Constraint("PointOnObject", 17, 2, -1),
    Sketcher.Constraint("Horizontal", 20, 3, 21, 3),
    Sketcher.Constraint("Horizontal", 22, 3, 23, 3),
    Sketcher.Constraint("Horizontal", 4, 2, 7, 2),
    Sketcher.Constraint("Horizontal", 6, 2, 9, 2),
    Sketcher.Constraint("Horizontal", 8, 2, 11, 2),
    Sketcher.Constraint("Horizontal", 0, 2, 15, 2),
    Sketcher.Constraint("Vertical", 20, 3, 22, 3),
    Sketcher.Constraint("Vertical", 21, 3, 23, 3),
    Sketcher.Constraint("Vertical", 1, 2, 4, 2),
    Sketcher.Constraint("Vertical", 11, 2, 14, 2),
    Sketcher.Constraint("Vertical", 9, 2, 16, 2),
    Sketcher.Constraint("Vertical", 7, 2, 18, 2),
    Sketcher.Constraint("Equal", 6, 10),
    Sketcher.Constraint("Equal", 4, 12),
    Sketcher.Constraint("Equal", 1, 5),
    Sketcher.Constraint("Diameter", 20, 3.1),
    Sketcher.Constraint("DistanceX", 8, 1, 8, 2, 6.0),
    Sketcher.Constraint("DistanceY", 3, 1, 3, 2, 60.0),
    Sketcher.Constraint("DistanceX", 0, 2, 0, 1, 2.7),
    Sketcher.Constraint("DistanceY", 1, 2, 1, 1, 7.5),
    Sketcher.Constraint("DistanceY", -1, 1, 20, 3, 7.0),
    Sketcher.Constraint("DistanceY", -1, 1, 22, 3, 53.0),
    Sketcher.Constraint("DistanceX", 2, 2, -1, 1, 5.0),
    Sketcher.Constraint("DistanceX", 2, 2, 2, 1, 9.85),
    Sketcher.Constraint("DistanceX", -1, 1, 20, 3, 23.6),
    Sketcher.Constraint("DistanceX", 21, 3, -1, 1, 2.5),
])
sketch8.setExpression("Constraints[61]", "Params.sketch8_diameter")
sketch8.setExpression("Constraints[62]", "Params.sketch8_width")
sketch8.setExpression("Constraints[63]", "Params.sketch8_height")
sketch8.setExpression("Constraints[64]", "Params.sketch8_width2")
sketch8.setExpression("Constraints[65]", "Params.sketch8_height2")
pad3 = doc.addObject("PartDesign::Pad", "Pad002")
body.addObject(pad3)
pad3.Profile = sketch8
pad3.setExpression("Length", "Params.pad3_length")

# Sketch on XY plane
sketch9 = doc.addObject("Sketcher::SketchObject", "Sketch008")
body.addObject(sketch9)
sketch9.AttachmentSupport = (doc.XY_Plane, [""])
sketch9.MapMode = "FlatFace"
sketch9.AttachmentOffset = App.Placement(Vector(0, 0, -28.35), App.Rotation())
sketch9.addGeometry([
    Part.LineSegment(Vector(26, 60, 0), Vector(26, 0, 0)),
    Part.LineSegment(Vector(26, 0, 0), Vector(21, 0, 0)),
    Part.LineSegment(Vector(21, 0, 0), Vector(21, 60, 0)),
    Part.LineSegment(Vector(21, 60, 0), Vector(26, 60, 0)),
], False)
sketch9.addConstraint([
    Sketcher.Constraint("Coincident", 0, 2, 1, 1),
    Sketcher.Constraint("Coincident", 1, 2, 2, 1),
    Sketcher.Constraint("Coincident", 2, 2, 3, 1),
    Sketcher.Constraint("Coincident", 3, 2, 0, 1),
    Sketcher.Constraint("Vertical", 0),
    Sketcher.Constraint("Horizontal", 1),
    Sketcher.Constraint("Vertical", 2),
    Sketcher.Constraint("Horizontal", 3),
    Sketcher.Constraint("PointOnObject", 0, 2, -1),
    Sketcher.Constraint("DistanceX", 1, 2, 1, 1, 5.0),
    Sketcher.Constraint("DistanceY", 0, 2, 0, 1, 60.0),
    Sketcher.Constraint("DistanceX", -1, 1, 0, 2, 26.1),
])
sketch9.setExpression("Constraints[9]", "Params.sketch9_width")
sketch9.setExpression("Constraints[10]", "Params.sketch9_height")
pocket6 = doc.addObject("PartDesign::Pocket", "Pocket005")
body.addObject(pocket6)
pocket6.Profile = sketch9
pocket6.Type = "ThroughAll"
pocket6.Reversed = True

doc.recompute()
